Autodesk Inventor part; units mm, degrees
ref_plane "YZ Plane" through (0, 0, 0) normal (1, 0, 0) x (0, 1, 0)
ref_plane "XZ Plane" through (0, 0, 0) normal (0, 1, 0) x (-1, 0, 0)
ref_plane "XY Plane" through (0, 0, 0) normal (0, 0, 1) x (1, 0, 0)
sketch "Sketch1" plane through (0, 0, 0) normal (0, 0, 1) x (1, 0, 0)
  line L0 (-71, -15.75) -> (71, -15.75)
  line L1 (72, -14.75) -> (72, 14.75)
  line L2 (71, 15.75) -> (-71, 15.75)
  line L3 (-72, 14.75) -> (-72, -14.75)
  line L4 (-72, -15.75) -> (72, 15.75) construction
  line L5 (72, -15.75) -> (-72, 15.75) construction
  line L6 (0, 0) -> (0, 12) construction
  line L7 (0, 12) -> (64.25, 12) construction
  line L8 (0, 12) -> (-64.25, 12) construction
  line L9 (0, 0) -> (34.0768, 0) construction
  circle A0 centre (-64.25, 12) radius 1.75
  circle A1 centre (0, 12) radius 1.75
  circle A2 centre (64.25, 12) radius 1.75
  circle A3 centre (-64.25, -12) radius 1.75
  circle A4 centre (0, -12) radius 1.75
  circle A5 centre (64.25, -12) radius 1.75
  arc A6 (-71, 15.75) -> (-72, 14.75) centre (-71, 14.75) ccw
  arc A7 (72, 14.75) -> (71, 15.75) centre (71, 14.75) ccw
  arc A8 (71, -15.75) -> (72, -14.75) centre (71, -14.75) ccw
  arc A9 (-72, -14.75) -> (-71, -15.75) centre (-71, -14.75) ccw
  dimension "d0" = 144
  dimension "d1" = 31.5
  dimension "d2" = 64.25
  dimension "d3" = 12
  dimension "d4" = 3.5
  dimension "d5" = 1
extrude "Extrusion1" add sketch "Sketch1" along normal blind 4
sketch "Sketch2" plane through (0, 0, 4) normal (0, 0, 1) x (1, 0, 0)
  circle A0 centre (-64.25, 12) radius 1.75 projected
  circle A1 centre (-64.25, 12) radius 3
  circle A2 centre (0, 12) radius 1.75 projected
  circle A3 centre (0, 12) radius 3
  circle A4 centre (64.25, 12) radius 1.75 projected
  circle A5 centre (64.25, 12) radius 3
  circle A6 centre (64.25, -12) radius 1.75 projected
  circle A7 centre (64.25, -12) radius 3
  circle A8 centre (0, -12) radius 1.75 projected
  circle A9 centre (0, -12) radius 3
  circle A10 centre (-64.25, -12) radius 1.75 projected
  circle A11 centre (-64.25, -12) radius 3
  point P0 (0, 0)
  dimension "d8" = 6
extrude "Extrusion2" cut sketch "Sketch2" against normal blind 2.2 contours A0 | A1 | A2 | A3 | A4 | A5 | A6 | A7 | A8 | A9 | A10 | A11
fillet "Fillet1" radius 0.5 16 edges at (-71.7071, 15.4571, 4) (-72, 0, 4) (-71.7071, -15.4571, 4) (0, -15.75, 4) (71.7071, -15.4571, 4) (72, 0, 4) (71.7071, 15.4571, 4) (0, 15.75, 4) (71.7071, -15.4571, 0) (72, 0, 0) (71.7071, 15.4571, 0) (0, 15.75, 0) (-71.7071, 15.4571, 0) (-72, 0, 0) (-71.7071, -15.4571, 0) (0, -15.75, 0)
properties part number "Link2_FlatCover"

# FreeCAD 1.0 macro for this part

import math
import FreeCAD as App
import Part
import Sketcher
from FreeCAD import Vector


def edges_at(feature, points):
    """Names of the edges that pass closest to the given points."""
    edges = feature.Shape.Edges
    near = lambda p: min(range(len(edges)), key=lambda i: edges[i].distToShape(Part.Vertex(*p))[0])
    return sorted({f"Edge{near(p) + 1}" for p in points})

doc = App.newDocument("Part")
body = doc.addObject("PartDesign::Body", "Body")

sketch1 = body.newObject("Sketcher::SketchObject", "Sketch")
sketch1.AttachmentSupport = (doc.getObject("XY_Plane"), [""])
sketch1.MapMode = "FlatFace"
sketch1.addGeometry([
    Part.ArcOfCircle(Part.Circle(Vector(-71, -14.8, 0), Vector(0, 0, 1), 1), math.radians(180), math.radians(270)),
    Part.LineSegment(Vector(-71, -15.8, 0), Vector(71, -15.8, 0)),
    Part.ArcOfCircle(Part.Circle(Vector(71, -14.8, 0), Vector(0, 0, 1), 1), math.radians(-90), math.radians(0)),
    Part.LineSegment(Vector(72, -14.8, 0), Vector(72, 14.8, 0)),
    Part.ArcOfCircle(Part.Circle(Vector(71, 14.8, 0), Vector(0, 0, 1), 1), math.radians(0), math.radians(90)),
    Part.LineSegment(Vector(71, 15.8, 0), Vector(-71, 15.8, 0)),
    Part.ArcOfCircle(Part.Circle(Vector(-71, 14.8, 0), Vector(0, 0, 1), 1), math.radians(90), math.radians(180)),
    Part.LineSegment(Vector(-72, 14.8, 0), Vector(-72, -14.8, 0)),
    Part.Circle(Vector(-64.2, -12, 0), Vector(0, 0, 1), 1.8),
    Part.Circle(Vector(0, -12, 0), Vector(0, 0, 1), 1.8),
    Part.Circle(Vector(64.2, -12, 0), Vector(0, 0, 1), 1.8),
    Part.Circle(Vector(-64.2, 12, 0), Vector(0, 0, 1), 1.8),
    Part.Circle(Vector(0, 12, 0), Vector(0, 0, 1), 1.8),
    Part.Circle(Vector(64.2, 12, 0), Vector(0, 0, 1), 1.8),
], False)
sketch1.addConstraint([
    Sketcher.Constraint("Tangent", 0, 2, 1, 1),
    Sketcher.Constraint("Tangent", 1, 2, 2, 1),
    Sketcher.Constraint("Tangent", 2, 2, 3, 1),
    Sketcher.Constraint("Tangent", 3, 2, 4, 1),
    Sketcher.Constraint("Tangent", 4, 2, 5, 1),
    Sketcher.Constraint("Tangent", 5, 2, 6, 1),
    Sketcher.Constraint("Tangent", 6, 2, 7, 1),
    Sketcher.Constraint("Tangent", 7, 2, 0, 1),
    Sketcher.Constraint("Horizontal", 1),
    Sketcher.Constraint("Vertical", 3),
    Sketcher.Constraint("Horizontal", 5),
    Sketcher.Constraint("Vertical", 7),
    Sketcher.Constraint("Equal", 0, 2),
    Sketcher.Constraint("Equal", 2, 4),
    Sketcher.Constraint("Equal", 4, 6),
    Sketcher.Constraint("Equal", 8, 9),
    Sketcher.Constraint("Equal", 9, 10),
    Sketcher.Constraint("Equal", 10, 11),
    Sketcher.Constraint("Equal", 11, 12),
    Sketcher.Constraint("Equal", 12, 13),
    Sketcher.Constraint("Symmetric", 0, 3, 4, 3, -1, 1),
    Sketcher.Constraint("Symmetric", 10, 3, 11, 3, -1, 1),
    Sketcher.Constraint("Symmetric", 9, 3, 12, 3, -1, 1),
    Sketcher.Constraint("Symmetric", 8, 3, 13, 3, -1, 1),
    Sketcher.Constraint("Symmetric", 8, 3, 10, 3, -2),
    Sketcher.Constraint("PointOnObject", 9, 3, -2),
    Sketcher.Constraint("Horizontal", 8, 3, 9, 3),
    Sketcher.Constraint("Radius", 0, 1.0),
    Sketcher.Constraint("Diameter", 8, 3.5),
    Sketcher.Constraint("DistanceY", 8, 3, -1, 1, 12.0),
    Sketcher.Constraint("DistanceY", 0, 2, 5, 2, 31.5),
    Sketcher.Constraint("DistanceX", 1, 1, 1, 2, 142.0),
    Sketcher.Constraint("DistanceX", 8, 3, -1, 1, 64.25),
])
pad1 = body.newObject("PartDesign::Pad", "Pad")
pad1.Profile = sketch1
pad1.Length = 4

sketch2 = body.newObject("Sketcher::SketchObject", "Sketch001")
sketch2.AttachmentSupport = (doc.getObject("XY_Plane"), [""])
sketch2.MapMode = "FlatFace"
sketch2.AttachmentOffset = App.Placement(Vector(0, 0, 4), App.Rotation())
sketch2.addGeometry([
    Part.Circle(Vector(-64.2, 12, 0), Vector(0, 0, 1), 3),
    Part.Circle(Vector(0, 12, 0), Vector(0, 0, 1), 3),
    Part.Circle(Vector(64.2, 12, 0), Vector(0, 0, 1), 3),
    Part.Circle(Vector(64.2, -12, 0), Vector(0, 0, 1), 3),
    Part.Circle(Vector(0, -12, 0), Vector(0, 0, 1), 3),
    Part.Circle(Vector(-64.2, -12, 0), Vector(0, 0, 1), 3),
], False)
sketch2.addConstraint([
    Sketcher.Constraint("Equal", 0, 1),
    Sketcher.Constraint("Equal", 1, 2),
    Sketcher.Constraint("Equal", 2, 3),
    Sketcher.Constraint("Equal", 3, 4),
    Sketcher.Constraint("Equal", 4, 5),
    Sketcher.Constraint("Symmetric", 0, 3, 3, 3, -1, 1),
    Sketcher.Constraint("Symmetric", 1, 3, 4, 3, -1, 1),
    Sketcher.Constraint("Symmetric", 2, 3, 5, 3, -1, 1),
    Sketcher.Constraint("Symmetric", 0, 3, 2, 3, -2),
    Sketcher.Constraint("PointOnObject", 1, 3, -2),
    Sketcher.Constraint("Horizontal", 0, 3, 1, 3),
    Sketcher.Constraint("Diameter", 0, 6.0),
    Sketcher.Constraint("DistanceY", -1, 1, 0, 3, 12.0),
    Sketcher.Constraint("DistanceX", 0, 3, 2, 3, 128.5),
])
pocket1 = body.newObject("PartDesign::Pocket", "Pocket")
pocket1.Profile = sketch2
pocket1.Length = 2.2
doc.recompute()

fillet = body.newObject("PartDesign::Fillet", "Fillet")
fillet.Base = (pocket1, edges_at(pocket1, [
    (-71.707, 15.457, 4),
    (-72, 0, 4),
    (-71.707, -15.457, 4),
    (0, -15.75, 4),
    (71.707, -15.457, 4),
    (72, 0, 4),
    (71.707, 15.457, 4),
    (0, 15.75, 4),
    (71.707, -15.457, 0),
    (72, 0, 0),
    (71.707, 15.457, 0),
    (0, 15.75, 0),
    (-71.707, 15.457, 0),
    (-72, 0, 0),
    (-71.707, -15.457, 0),
    (0, -15.75, 0),
]))
fillet.Radius = 0.5

doc.recompute()
